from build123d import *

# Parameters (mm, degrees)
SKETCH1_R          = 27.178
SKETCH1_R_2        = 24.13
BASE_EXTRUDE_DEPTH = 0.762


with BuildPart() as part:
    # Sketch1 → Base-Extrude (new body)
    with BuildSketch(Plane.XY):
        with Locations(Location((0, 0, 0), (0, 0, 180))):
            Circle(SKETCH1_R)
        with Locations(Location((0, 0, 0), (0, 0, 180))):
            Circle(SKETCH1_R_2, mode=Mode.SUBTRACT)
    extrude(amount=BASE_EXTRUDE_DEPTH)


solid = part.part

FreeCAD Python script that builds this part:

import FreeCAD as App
import Part
import Sketcher
Q = App.Units.Quantity

doc = App.newDocument("Part")
body = doc.addObject("PartDesign::Body", "Body")

sketch1 = body.newObject("Sketcher::SketchObject", "Sketch")
sketch1.AttachmentSupport = (doc.getObject("XY_Plane"), [""])
sketch1.MapMode = "FlatFace"
sketch1.addGeometry(Part.Circle(App.Vector(0, 0, 0), App.Vector(0, 0, 1), 27), False)
sketch1.addGeometry(Part.Circle(App.Vector(0, 0, 0), App.Vector(0, 0, 1), 24), False)
sketch1.addConstraint(Sketcher.Constraint("Coincident", 0, 3, -1, 1))
sketch1.addConstraint(Sketcher.Constraint("Coincident", 1, 3, -1, 1))
sketch1.addConstraint(Sketcher.Constraint("Diameter", 1, Q("1.9 in")))
sketch1.addConstraint(Sketcher.Constraint("Diameter", 0, Q("2.14 in")))
pad1 = body.newObject("PartDesign::Pad", "Pad")
pad1.Profile = sketch1
pad1.Length = Q("0.03 in")

doc.recompute()
